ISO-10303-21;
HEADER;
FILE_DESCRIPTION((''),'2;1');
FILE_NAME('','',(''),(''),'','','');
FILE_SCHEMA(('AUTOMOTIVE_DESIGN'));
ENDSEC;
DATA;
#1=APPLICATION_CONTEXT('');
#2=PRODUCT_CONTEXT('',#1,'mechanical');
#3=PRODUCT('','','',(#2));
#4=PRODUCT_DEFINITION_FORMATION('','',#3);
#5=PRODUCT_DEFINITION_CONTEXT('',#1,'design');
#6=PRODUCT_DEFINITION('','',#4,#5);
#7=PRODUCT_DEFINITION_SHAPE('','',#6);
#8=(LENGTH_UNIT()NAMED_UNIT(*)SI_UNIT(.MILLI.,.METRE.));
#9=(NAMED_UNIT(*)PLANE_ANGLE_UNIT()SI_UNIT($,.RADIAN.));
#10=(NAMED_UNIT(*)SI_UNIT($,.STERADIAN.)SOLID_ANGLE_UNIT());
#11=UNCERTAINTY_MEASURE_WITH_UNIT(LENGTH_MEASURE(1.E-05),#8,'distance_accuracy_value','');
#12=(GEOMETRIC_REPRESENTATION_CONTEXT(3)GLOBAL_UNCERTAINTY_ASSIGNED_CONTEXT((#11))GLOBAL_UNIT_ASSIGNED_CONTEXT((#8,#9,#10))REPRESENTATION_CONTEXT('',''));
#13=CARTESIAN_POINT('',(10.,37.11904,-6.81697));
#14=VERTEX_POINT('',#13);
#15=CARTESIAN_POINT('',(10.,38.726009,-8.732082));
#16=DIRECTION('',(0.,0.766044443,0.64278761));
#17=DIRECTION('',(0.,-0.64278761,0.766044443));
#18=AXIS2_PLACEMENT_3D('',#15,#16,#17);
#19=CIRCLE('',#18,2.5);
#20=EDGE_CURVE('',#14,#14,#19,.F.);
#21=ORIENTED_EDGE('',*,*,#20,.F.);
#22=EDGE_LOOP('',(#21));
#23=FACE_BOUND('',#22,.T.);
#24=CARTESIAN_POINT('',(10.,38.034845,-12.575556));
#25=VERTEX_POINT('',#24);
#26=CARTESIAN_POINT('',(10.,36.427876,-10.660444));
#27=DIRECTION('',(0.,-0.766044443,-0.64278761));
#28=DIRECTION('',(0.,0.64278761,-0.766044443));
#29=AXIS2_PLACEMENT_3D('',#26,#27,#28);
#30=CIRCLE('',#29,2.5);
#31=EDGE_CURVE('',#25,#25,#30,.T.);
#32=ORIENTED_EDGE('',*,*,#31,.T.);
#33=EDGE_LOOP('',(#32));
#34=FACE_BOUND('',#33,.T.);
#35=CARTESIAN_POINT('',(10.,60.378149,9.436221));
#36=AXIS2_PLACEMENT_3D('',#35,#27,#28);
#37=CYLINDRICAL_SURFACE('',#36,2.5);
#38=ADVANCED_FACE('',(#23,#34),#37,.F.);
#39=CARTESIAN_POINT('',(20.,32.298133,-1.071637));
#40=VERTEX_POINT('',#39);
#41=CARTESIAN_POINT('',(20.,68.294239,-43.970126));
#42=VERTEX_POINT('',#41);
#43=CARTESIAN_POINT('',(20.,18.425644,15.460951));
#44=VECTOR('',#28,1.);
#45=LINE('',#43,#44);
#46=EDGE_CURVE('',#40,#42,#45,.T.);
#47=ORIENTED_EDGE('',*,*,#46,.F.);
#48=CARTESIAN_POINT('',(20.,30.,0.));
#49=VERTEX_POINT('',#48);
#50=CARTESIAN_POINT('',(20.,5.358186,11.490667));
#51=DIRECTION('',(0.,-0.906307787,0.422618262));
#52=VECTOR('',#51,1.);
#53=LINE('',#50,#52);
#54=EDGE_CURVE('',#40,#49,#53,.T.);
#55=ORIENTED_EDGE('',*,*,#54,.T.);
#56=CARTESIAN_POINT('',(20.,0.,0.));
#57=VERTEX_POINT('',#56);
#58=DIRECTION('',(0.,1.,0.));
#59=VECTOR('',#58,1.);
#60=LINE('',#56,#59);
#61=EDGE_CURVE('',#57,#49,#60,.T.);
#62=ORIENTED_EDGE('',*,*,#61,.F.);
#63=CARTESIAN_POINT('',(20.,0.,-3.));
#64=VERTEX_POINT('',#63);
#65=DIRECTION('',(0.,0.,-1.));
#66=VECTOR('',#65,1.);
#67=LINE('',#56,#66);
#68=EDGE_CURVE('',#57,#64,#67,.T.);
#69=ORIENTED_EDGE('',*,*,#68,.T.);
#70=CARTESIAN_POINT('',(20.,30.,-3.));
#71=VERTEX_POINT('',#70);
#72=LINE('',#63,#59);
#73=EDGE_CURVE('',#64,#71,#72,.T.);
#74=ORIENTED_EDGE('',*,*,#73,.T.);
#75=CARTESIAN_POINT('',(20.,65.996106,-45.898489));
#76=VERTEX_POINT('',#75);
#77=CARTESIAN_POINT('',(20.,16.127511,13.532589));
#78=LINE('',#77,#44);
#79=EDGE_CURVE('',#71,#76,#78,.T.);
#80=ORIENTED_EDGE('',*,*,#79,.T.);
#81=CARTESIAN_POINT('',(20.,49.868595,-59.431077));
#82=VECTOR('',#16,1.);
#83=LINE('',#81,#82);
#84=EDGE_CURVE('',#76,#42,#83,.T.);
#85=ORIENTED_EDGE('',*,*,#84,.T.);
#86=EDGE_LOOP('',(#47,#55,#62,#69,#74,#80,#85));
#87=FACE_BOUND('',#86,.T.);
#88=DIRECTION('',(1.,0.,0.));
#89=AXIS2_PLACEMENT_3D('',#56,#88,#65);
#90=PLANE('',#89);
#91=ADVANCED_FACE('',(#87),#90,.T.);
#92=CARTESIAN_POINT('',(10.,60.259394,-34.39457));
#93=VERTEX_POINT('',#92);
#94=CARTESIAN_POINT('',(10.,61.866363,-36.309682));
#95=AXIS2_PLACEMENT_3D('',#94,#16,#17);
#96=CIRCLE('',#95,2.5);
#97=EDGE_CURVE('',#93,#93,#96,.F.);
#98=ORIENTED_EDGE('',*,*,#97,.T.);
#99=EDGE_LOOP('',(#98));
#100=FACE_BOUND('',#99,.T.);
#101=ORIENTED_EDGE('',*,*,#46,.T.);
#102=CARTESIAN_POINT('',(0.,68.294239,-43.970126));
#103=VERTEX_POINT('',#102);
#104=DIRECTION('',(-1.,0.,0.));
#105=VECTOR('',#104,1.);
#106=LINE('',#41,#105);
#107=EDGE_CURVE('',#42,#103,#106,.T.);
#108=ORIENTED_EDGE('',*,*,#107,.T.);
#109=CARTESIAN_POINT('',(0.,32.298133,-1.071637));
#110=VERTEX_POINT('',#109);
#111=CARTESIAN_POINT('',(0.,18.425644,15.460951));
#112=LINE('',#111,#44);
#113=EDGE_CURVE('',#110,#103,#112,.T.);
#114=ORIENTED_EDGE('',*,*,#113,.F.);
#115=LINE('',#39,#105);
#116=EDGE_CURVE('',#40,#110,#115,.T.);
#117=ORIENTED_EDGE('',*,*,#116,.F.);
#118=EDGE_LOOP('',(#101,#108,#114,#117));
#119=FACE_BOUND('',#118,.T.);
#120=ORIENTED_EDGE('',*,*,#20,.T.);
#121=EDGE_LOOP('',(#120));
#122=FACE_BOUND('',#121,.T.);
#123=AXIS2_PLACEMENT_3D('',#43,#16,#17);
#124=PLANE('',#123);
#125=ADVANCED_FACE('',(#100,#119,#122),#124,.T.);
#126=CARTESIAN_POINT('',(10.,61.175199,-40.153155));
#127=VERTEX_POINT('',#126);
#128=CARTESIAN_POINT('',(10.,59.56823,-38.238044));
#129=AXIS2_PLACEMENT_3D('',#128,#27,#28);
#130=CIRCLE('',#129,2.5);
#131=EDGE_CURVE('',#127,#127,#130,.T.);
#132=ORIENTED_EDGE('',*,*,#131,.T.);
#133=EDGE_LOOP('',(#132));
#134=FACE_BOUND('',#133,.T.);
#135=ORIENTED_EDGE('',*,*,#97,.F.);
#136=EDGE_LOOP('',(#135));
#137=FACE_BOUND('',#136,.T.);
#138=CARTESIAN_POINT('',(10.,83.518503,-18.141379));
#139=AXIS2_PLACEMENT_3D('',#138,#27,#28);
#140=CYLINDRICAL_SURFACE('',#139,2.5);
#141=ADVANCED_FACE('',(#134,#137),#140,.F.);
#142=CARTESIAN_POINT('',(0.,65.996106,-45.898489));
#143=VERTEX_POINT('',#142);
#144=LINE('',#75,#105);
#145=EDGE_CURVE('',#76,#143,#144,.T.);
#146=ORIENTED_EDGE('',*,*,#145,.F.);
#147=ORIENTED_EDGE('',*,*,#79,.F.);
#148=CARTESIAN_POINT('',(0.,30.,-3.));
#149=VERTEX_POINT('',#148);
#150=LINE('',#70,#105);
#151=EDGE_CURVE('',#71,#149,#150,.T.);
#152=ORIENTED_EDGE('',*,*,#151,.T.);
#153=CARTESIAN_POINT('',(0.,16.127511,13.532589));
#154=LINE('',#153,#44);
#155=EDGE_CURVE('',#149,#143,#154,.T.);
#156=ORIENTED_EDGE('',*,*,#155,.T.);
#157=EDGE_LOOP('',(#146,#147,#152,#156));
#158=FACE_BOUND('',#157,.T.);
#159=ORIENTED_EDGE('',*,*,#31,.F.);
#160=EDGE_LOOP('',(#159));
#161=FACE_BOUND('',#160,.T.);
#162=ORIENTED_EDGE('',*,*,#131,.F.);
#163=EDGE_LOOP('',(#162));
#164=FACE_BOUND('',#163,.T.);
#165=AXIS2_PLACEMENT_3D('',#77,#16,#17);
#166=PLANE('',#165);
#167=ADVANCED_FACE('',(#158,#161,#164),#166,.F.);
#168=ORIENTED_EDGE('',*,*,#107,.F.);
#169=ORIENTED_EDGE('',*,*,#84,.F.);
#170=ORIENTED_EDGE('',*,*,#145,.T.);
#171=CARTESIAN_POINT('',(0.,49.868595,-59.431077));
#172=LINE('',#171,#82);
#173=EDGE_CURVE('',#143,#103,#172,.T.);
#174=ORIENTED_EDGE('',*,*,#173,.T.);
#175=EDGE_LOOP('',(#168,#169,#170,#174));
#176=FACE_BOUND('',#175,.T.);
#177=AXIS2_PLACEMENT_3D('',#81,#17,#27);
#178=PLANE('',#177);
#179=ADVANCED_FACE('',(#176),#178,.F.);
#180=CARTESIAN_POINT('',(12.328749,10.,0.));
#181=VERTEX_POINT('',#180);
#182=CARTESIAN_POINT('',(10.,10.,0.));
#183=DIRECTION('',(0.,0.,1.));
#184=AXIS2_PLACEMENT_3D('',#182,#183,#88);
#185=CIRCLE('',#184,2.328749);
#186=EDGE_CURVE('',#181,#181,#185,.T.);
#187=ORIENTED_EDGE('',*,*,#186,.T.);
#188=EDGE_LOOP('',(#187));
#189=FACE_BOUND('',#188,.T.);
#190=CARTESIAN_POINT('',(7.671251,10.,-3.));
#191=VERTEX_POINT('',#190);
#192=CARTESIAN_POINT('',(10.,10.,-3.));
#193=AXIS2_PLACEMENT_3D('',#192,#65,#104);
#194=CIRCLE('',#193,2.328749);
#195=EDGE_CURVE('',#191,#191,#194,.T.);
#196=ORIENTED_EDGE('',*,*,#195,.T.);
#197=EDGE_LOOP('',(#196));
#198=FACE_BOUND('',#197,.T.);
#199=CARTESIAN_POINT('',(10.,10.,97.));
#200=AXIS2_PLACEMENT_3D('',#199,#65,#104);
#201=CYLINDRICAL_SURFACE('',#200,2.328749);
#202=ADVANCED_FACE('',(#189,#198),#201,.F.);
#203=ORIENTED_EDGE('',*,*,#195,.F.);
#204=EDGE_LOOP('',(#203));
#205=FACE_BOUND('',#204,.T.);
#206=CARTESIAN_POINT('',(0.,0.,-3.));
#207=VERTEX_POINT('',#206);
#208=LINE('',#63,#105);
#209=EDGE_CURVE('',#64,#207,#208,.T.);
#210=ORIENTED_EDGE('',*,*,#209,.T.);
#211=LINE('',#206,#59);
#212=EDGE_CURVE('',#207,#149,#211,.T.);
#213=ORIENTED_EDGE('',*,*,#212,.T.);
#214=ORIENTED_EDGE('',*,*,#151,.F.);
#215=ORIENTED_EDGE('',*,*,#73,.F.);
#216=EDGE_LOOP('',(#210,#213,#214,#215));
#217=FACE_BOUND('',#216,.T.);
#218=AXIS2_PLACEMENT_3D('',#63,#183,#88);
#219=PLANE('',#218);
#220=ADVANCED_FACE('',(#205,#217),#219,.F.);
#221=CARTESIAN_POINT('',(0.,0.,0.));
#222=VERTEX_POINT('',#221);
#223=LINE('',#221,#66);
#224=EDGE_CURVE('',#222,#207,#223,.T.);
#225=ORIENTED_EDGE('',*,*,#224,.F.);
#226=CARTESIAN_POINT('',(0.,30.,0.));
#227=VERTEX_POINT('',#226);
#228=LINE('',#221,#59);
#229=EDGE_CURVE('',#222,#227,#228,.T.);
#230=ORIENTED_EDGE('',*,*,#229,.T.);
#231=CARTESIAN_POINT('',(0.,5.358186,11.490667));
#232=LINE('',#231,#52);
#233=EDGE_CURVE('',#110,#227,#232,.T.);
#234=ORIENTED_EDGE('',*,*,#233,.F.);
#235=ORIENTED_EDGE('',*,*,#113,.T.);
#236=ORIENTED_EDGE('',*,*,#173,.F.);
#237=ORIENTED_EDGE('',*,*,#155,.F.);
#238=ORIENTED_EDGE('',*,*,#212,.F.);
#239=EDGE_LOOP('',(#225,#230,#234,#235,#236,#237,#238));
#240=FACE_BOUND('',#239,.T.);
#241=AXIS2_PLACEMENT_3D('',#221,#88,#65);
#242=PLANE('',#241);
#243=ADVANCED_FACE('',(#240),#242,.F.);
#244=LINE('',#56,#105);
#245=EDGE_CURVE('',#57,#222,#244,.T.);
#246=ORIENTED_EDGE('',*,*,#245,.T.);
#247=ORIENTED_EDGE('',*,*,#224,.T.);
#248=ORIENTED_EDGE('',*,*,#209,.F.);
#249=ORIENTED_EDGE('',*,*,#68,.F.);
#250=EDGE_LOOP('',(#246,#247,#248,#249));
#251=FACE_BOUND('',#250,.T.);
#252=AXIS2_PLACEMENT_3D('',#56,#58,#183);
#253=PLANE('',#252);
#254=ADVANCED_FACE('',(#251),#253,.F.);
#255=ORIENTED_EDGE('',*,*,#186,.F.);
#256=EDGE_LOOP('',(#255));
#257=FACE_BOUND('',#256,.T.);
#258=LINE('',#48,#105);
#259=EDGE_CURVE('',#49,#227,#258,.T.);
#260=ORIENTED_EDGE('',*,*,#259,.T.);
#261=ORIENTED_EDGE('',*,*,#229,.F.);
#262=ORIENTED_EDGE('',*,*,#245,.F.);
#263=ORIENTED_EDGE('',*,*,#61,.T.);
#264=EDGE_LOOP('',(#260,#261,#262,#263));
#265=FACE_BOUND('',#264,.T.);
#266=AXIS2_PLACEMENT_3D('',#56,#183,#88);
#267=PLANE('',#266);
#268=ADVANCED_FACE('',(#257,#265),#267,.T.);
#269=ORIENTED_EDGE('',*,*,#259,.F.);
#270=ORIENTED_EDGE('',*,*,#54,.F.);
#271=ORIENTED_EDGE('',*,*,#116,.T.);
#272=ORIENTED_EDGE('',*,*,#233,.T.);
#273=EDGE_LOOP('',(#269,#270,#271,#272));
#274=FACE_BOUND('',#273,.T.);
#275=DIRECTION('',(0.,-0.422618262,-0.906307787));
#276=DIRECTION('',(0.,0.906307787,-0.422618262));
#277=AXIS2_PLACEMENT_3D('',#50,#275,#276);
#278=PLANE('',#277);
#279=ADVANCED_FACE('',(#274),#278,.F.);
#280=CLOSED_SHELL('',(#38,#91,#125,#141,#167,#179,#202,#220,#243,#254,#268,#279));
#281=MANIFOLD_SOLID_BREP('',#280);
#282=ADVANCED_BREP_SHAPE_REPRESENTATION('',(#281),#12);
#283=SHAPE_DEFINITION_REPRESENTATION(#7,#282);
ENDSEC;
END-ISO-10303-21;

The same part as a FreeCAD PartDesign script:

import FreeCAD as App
import Part
import Sketcher
Q = App.Units.Quantity

doc = App.newDocument("Part")
body = doc.addObject("PartDesign::Body", "Body")

# Sketch on YZ plane
sketch1 = body.newObject("Sketcher::SketchObject", "Sketch")
sketch1.AttachmentSupport = (doc.getObject("YZ_Plane"), [""])
sketch1.MapMode = "FlatFace"
sketch1.addGeometry(Part.LineSegment(App.Vector(30, -3, 0), App.Vector(66, -45.9, 0)), False)
sketch1.addGeometry(Part.LineSegment(App.Vector(66, -45.9, 0), App.Vector(68.3, -44, 0)), False)
sketch1.addGeometry(Part.LineSegment(App.Vector(68.3, -44, 0), App.Vector(32.3, -1.1, 0)), False)
sketch1.addGeometry(Part.LineSegment(App.Vector(32.3, -1.1, 0), App.Vector(30, 0, 0)), False)
sketch1.addGeometry(Part.LineSegment(App.Vector(30, 0, 0), App.Vector(0, 0, 0)), False)
sketch1.addGeometry(Part.LineSegment(App.Vector(0, 0, 0), App.Vector(0, -3, 0)), False)
sketch1.addGeometry(Part.LineSegment(App.Vector(0, -3, 0), App.Vector(30, -3, 0)), False)
sketch1.addConstraint(Sketcher.Constraint("Coincident", 0, 2, 1, 1))
sketch1.addConstraint(Sketcher.Constraint("Coincident", 1, 2, 2, 1))
sketch1.addConstraint(Sketcher.Constraint("Coincident", 2, 2, 3, 1))
sketch1.addConstraint(Sketcher.Constraint("Coincident", 3, 2, 4, 1))
sketch1.addConstraint(Sketcher.Constraint("Coincident", 4, 2, 5, 1))
sketch1.addConstraint(Sketcher.Constraint("Coincident", 5, 2, 6, 1))
sketch1.addConstraint(Sketcher.Constraint("Coincident", 6, 2, 0, 1))
sketch1.addConstraint(Sketcher.Constraint("Horizontal", 4))
sketch1.addConstraint(Sketcher.Constraint("Vertical", 5))
sketch1.addConstraint(Sketcher.Constraint("Horizontal", 6))
sketch1.addConstraint(Sketcher.Constraint("Coincident", 4, 2, -1, 1))
sketch1.addConstraint(Sketcher.Constraint("Perpendicular", 0, 1))
sketch1.addConstraint(Sketcher.Constraint("Perpendicular", 1, 2))
sketch1.addConstraint(Sketcher.Constraint("Vertical", 3, 2, 6, 2))
sketch1.addConstraint(Sketcher.Constraint("Equal", 0, 2))
sketch1.addConstraint(Sketcher.Constraint("DistanceX", 4, 2, 4, 1, 30.0))
sketch1.addConstraint(Sketcher.Constraint("DistanceY", 5, 2, 5, 1, 3.0))
sketch1.addConstraint(Sketcher.Constraint("Angle", 0, Q("-50 deg")))
sketch1.addConstraint(Sketcher.Constraint("Angle", 3, Q("155 deg")))
sketch1.addConstraint(Sketcher.Constraint("Distance", 0, 56.0))
pad1 = body.newObject("PartDesign::Pad", "Pad")
pad1.Profile = sketch1
pad1.Length = 20

# Sketch on an angled plane
sketch2 = body.newObject("Sketcher::SketchObject", "Sketch001")
sketch2.Placement = App.Placement(App.Vector(0, 16.127511, 13.532589), App.Rotation(App.Vector(-1, 0, 0), App.Vector(0, 0.64278761, -0.766044443), App.Vector(0, -0.766044443, -0.64278761), "ZXY"))
sketch2.addGeometry(Part.Circle(App.Vector(-10, 67.6, 0), App.Vector(0, 0, 1), 2.5), False)
sketch2.addConstraint(Sketcher.Constraint("Diameter", 0, 5.0))
sketch2.addConstraint(Sketcher.Constraint("DistanceX", 0, 3, -1, 1, 10.0))
sketch2.addConstraint(Sketcher.Constraint("DistanceY", -1, 1, 0, 3, 67.581762))
pocket1 = body.newObject("PartDesign::Pocket", "Pocket")
pocket1.Profile = sketch2
pocket1.Type = "UpToFirst"

# Sketch on an angled plane
sketch3 = body.newObject("Sketcher::SketchObject", "Sketch002")
sketch3.Placement = App.Placement(App.Vector(0, 16.127511, 13.532589), App.Rotation(App.Vector(-1, 0, 0), App.Vector(0, 0.64278761, -0.766044443), App.Vector(0, -0.766044443, -0.64278761), "ZXY"))
sketch3.addGeometry(Part.Circle(App.Vector(-10, 31.6, 0), App.Vector(0, 0, 1), 2.5), False)
sketch3.addConstraint(Sketcher.Constraint("Diameter", 0, 5.0))
sketch3.addConstraint(Sketcher.Constraint("DistanceX", 0, 3, -1, 1, 10.0))
sketch3.addConstraint(Sketcher.Constraint("DistanceY", -1, 1, 0, 3, 31.581762))
pocket2 = body.newObject("PartDesign::Pocket", "Pocket001")
pocket2.Profile = sketch3
pocket2.Type = "UpToFirst"

# Sketch on XY plane
sketch4 = body.newObject("Sketcher::SketchObject", "Sketch003")
sketch4.AttachmentSupport = (doc.getObject("XY_Plane"), [""])
sketch4.MapMode = "FlatFace"
sketch4.AttachmentOffset = App.Placement(App.Vector(0, 0, -3), App.Rotation())
sketch4.addGeometry(Part.Circle(App.Vector(10, 10, 0), App.Vector(0, 0, 1), 2.3), False)
sketch4.addConstraint(Sketcher.Constraint("DistanceX", -1, 1, 0, 3, 10.0))
sketch4.addConstraint(Sketcher.Constraint("DistanceY", -1, 1, 0, 3, 10.0))
sketch4.addConstraint(Sketcher.Constraint("Diameter", 0, 4.657498))
pocket3 = body.newObject("PartDesign::Pocket", "Pocket002")
pocket3.Profile = sketch4
pocket3.Length = 100
pocket3.Reversed = True

doc.recompute()
